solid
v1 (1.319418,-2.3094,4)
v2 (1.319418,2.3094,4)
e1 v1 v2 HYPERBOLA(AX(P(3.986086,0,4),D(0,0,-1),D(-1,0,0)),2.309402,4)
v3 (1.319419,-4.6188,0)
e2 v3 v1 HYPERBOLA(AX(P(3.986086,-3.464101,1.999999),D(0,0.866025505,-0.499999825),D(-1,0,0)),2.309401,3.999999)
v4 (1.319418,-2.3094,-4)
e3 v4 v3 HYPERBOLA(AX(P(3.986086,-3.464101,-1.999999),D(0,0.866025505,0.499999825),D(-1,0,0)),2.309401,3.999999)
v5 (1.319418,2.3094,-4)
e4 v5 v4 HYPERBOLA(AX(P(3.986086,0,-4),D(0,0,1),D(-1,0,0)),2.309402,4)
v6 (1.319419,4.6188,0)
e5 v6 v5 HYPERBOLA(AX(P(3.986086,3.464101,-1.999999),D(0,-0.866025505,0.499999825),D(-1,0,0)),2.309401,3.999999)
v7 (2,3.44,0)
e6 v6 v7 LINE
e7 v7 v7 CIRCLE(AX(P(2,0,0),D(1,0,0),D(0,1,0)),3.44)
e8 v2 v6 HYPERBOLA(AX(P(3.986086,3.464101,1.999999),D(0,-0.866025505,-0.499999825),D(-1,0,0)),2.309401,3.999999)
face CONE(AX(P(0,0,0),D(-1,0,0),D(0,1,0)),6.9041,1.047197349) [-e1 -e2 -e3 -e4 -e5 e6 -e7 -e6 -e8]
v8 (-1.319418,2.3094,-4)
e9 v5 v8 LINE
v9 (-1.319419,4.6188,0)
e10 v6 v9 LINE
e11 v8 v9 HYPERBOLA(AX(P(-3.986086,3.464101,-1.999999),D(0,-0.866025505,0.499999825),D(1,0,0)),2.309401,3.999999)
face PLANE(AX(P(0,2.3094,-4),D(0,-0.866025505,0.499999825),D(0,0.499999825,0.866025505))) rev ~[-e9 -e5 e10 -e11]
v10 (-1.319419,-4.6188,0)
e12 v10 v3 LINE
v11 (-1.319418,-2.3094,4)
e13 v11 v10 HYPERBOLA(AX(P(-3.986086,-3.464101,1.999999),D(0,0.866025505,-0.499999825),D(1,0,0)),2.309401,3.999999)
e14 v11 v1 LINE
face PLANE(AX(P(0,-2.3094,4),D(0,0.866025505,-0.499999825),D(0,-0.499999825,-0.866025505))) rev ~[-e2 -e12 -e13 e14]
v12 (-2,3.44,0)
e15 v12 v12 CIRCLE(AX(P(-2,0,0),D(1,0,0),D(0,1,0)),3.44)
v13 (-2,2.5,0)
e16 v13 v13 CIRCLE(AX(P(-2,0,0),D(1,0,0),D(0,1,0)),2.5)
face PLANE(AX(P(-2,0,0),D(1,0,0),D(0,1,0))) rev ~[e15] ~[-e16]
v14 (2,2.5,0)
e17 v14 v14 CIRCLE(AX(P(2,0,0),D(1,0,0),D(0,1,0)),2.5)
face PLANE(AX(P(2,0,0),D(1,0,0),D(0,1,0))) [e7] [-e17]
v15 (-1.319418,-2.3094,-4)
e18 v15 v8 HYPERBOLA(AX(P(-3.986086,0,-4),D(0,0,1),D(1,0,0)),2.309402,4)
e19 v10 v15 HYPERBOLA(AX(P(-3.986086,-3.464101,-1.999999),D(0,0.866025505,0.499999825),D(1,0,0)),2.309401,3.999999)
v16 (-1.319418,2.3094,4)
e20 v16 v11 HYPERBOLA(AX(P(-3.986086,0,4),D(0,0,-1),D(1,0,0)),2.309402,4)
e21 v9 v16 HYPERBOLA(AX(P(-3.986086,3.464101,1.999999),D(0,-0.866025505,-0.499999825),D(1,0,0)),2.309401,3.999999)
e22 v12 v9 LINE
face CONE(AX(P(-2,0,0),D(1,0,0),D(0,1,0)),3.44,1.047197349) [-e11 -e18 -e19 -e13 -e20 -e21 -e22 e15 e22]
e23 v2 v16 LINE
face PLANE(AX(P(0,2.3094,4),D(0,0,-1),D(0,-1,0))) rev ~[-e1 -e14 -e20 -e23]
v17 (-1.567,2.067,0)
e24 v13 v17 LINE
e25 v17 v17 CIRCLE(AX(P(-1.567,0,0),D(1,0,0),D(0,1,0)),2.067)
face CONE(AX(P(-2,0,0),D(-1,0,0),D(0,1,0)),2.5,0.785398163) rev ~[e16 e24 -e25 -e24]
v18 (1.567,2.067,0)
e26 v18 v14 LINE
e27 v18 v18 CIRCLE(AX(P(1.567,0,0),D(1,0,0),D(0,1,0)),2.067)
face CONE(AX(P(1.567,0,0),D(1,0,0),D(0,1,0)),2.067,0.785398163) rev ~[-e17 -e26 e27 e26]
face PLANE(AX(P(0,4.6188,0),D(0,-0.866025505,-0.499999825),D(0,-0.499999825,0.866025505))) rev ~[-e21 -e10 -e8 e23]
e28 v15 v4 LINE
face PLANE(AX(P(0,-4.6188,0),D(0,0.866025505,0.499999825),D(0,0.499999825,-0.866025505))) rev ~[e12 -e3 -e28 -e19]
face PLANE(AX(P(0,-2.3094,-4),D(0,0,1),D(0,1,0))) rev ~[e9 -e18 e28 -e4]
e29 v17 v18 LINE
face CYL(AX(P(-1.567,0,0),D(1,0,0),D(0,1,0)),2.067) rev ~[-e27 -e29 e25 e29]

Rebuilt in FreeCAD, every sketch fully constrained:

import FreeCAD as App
import Part
import Sketcher

V = App.Vector
Q = App.Units.Quantity


def add_polygon(sketch, points):
    """Adds a closed chain of lines whose ends are joined by coincident constraints."""
    first, n = sketch.GeometryCount, len(points)
    for a, b in zip(points, points[1:] + points[:1]):
        sketch.addGeometry(Part.LineSegment(App.Vector(*a, 0), App.Vector(*b, 0)), False)
    for i in range(n):
        sketch.addConstraint(Sketcher.Constraint("Coincident", first + i, 2, first + (i + 1) % n, 1))

doc = App.newDocument("Part")
body = doc.addObject("PartDesign::Body", "Body")

# Sketch on YZ plane
sketch1 = body.newObject("Sketcher::SketchObject", "Sketch")
sketch1.AttachmentSupport = (doc.getObject("YZ_Plane"), [""])
sketch1.MapMode = "FlatFace"
add_polygon(sketch1, [(2.3, 4), (-2.3, 4), (-4.6, 0), (-2.3, -4), (2.3, -4), (4.6, 0)])  # lines 0-5
sketch1.addConstraint(Sketcher.Constraint("Horizontal", 0))
sketch1.addConstraint(Sketcher.Constraint("Horizontal", 3))
sketch1.addConstraint(Sketcher.Constraint("Symmetric", 0, 2, 3, 2, -1, 1))
sketch1.addConstraint(Sketcher.Constraint("Symmetric", 1, 2, 4, 2, -1, 1))
sketch1.addConstraint(Sketcher.Constraint("PointOnObject", 1, 2, -1))
sketch1.addConstraint(Sketcher.Constraint("Parallel", 2, 5))
sketch1.addConstraint(Sketcher.Constraint("Vertical", 0, 2, 2, 2))
sketch1.addConstraint(Sketcher.Constraint("Angle", 1, Q("-120 deg")))
sketch1.addConstraint(Sketcher.Constraint("DistanceY", -1, 1, 0, 2, Q("4 mm")))
sketch1.addConstraint(Sketcher.Constraint("DistanceX", 0, 2, 0, 1, Q("4.6188 mm")))
pad1 = body.newObject("PartDesign::Pad", "Pad")
pad1.Profile = sketch1
pad1.Length = 4
pad1.Midplane = True

# Sketch on XY plane
sketch2 = body.newObject("Sketcher::SketchObject", "Sketch001")
sketch2.AttachmentSupport = (doc.getObject("XY_Plane"), [""])
sketch2.MapMode = "FlatFace"
add_polygon(sketch2, [(-2, 0), (2, 0), (2, 2.5), (1.6, 2.1), (-1.6, 2.1), (-2, 2.5)])  # lines 0-5
sketch2.addConstraint(Sketcher.Constraint("Horizontal", 0))
sketch2.addConstraint(Sketcher.Constraint("Vertical", 1))
sketch2.addConstraint(Sketcher.Constraint("Horizontal", 3))
sketch2.addConstraint(Sketcher.Constraint("Vertical", 5))
sketch2.addConstraint(Sketcher.Constraint("Symmetric", 0, 2, 5, 2, -1, 1))
sketch2.addConstraint(Sketcher.Constraint("Perpendicular", 2, 4))
sketch2.addConstraint(Sketcher.Constraint("Horizontal", 1, 2, 4, 2))
sketch2.addConstraint(Sketcher.Constraint("Equal", 2, 4))
sketch2.addConstraint(Sketcher.Constraint("DistanceX", 0, 1, 0, 2, Q("4 mm")))
sketch2.addConstraint(Sketcher.Constraint("DistanceY", 1, 1, 1, 2, Q("2.5 mm")))
sketch2.addConstraint(Sketcher.Constraint("DistanceX", 3, 2, 3, 1, Q("3.134 mm")))
groove = body.newObject("PartDesign::Groove", "Groove")
groove.Profile = sketch2
groove.ReferenceAxis = (sketch2, ["H_Axis"])
groove.Angle = 360

# Sketch on XY plane
sketch3 = body.newObject("Sketcher::SketchObject", "Sketch002")
sketch3.AttachmentSupport = (doc.getObject("XY_Plane"), [""])
sketch3.MapMode = "FlatFace"
add_polygon(sketch3, [(-7, 8.4), (-7, 1), (-2, 1), (-2, 3.4), (0, 6.9), (2, 3.4), (2, 1), (7, 1), (7, 8.4)])  # lines 0-8
sketch3.addConstraint(Sketcher.Constraint("Vertical", 0))
sketch3.addConstraint(Sketcher.Constraint("Horizontal", 1))
sketch3.addConstraint(Sketcher.Constraint("Vertical", 2))
sketch3.addConstraint(Sketcher.Constraint("Vertical", 5))
sketch3.addConstraint(Sketcher.Constraint("Horizontal", 6))
sketch3.addConstraint(Sketcher.Constraint("Vertical", 7))
sketch3.addConstraint(Sketcher.Constraint("Horizontal", 8))
sketch3.addConstraint(Sketcher.Constraint("Symmetric", 2, 2, 4, 2, -2))
sketch3.addConstraint(Sketcher.Constraint("Symmetric", 0, 2, 6, 2, -2))
sketch3.addConstraint(Sketcher.Constraint("PointOnObject", 3, 2, -2))
sketch3.addConstraint(Sketcher.Constraint("DistanceX", 1, 1, 1, 2, Q("5 mm")))
sketch3.addConstraint(Sketcher.Constraint("DistanceX", 8, 2, 8, 1, Q("14 mm")))
sketch3.addConstraint(Sketcher.Constraint("Angle", 3, Q("60 deg")))
sketch3.addConstraint(Sketcher.Constraint("DistanceY", -1, 1, 0, 2, Q("1 mm")))
sketch3.addConstraint(Sketcher.Constraint("DistanceY", 4, 2, 7, 2, Q("5 mm")))
sketch3.addConstraint(Sketcher.Constraint("DistanceY", 0, 2, 0, 1, Q("7.44 mm")))
groove2 = body.newObject("PartDesign::Groove", "Groove001")
groove2.Profile = sketch3
groove2.ReferenceAxis = (sketch3, ["H_Axis"])
groove2.Angle = 360

doc.recompute()
